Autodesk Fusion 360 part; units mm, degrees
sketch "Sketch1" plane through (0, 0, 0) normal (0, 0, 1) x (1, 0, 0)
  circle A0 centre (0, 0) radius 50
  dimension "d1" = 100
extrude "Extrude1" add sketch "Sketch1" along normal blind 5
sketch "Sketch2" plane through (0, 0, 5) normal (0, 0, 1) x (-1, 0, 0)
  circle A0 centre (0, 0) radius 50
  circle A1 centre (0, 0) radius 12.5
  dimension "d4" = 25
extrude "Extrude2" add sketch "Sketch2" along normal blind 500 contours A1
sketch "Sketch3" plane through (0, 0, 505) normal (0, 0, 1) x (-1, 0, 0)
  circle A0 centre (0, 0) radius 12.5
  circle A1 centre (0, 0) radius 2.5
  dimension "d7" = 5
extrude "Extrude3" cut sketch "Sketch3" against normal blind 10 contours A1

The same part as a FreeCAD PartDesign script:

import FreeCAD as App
import Part
import Sketcher
from FreeCAD import Vector

doc = App.newDocument("Part")
body = doc.addObject("PartDesign::Body", "Body")

# Sketch on XY plane
sketch1 = body.newObject("Sketcher::SketchObject", "Sketch")
sketch1.AttachmentSupport = (doc.getObject("XY_Plane"), [""])
sketch1.MapMode = "FlatFace"
sketch1.addGeometry(Part.Circle(Vector(0, 0, 0), Vector(0, 0, 1), 50), False)
sketch1.addConstraint(Sketcher.Constraint("Coincident", 0, 3, -1, 1))
sketch1.addConstraint(Sketcher.Constraint("Diameter", 0, 100.0))
pad1 = body.newObject("PartDesign::Pad", "Pad")
pad1.Profile = sketch1
pad1.Length = 5

# Sketch on XY plane
sketch2 = body.newObject("Sketcher::SketchObject", "Sketch001")
sketch2.AttachmentSupport = (doc.getObject("XY_Plane"), [""])
sketch2.MapMode = "FlatFace"
sketch2.AttachmentOffset = App.Placement(Vector(0, 0, 5), App.Rotation())
sketch2.addGeometry(Part.Circle(Vector(0, 0, 0), Vector(0, 0, 1), 12), False)
sketch2.addConstraint(Sketcher.Constraint("Coincident", 0, 3, -1, 1))
sketch2.addConstraint(Sketcher.Constraint("Diameter", 0, 25.0))
pad2 = body.newObject("PartDesign::Pad", "Pad001")
pad2.Profile = sketch2
pad2.Length = 500

# Sketch on XY plane
sketch3 = body.newObject("Sketcher::SketchObject", "Sketch002")
sketch3.AttachmentSupport = (doc.getObject("XY_Plane"), [""])
sketch3.MapMode = "FlatFace"
sketch3.AttachmentOffset = App.Placement(Vector(0, 0, 505), App.Rotation())
sketch3.addGeometry(Part.Circle(Vector(0, 0, 0), Vector(0, 0, 1), 2.5), False)
sketch3.addConstraint(Sketcher.Constraint("Coincident", 0, 3, -1, 1))
sketch3.addConstraint(Sketcher.Constraint("Diameter", 0, 5.0))
pocket1 = body.newObject("PartDesign::Pocket", "Pocket")
pocket1.Profile = sketch3
pocket1.Length = 10

doc.recompute()
